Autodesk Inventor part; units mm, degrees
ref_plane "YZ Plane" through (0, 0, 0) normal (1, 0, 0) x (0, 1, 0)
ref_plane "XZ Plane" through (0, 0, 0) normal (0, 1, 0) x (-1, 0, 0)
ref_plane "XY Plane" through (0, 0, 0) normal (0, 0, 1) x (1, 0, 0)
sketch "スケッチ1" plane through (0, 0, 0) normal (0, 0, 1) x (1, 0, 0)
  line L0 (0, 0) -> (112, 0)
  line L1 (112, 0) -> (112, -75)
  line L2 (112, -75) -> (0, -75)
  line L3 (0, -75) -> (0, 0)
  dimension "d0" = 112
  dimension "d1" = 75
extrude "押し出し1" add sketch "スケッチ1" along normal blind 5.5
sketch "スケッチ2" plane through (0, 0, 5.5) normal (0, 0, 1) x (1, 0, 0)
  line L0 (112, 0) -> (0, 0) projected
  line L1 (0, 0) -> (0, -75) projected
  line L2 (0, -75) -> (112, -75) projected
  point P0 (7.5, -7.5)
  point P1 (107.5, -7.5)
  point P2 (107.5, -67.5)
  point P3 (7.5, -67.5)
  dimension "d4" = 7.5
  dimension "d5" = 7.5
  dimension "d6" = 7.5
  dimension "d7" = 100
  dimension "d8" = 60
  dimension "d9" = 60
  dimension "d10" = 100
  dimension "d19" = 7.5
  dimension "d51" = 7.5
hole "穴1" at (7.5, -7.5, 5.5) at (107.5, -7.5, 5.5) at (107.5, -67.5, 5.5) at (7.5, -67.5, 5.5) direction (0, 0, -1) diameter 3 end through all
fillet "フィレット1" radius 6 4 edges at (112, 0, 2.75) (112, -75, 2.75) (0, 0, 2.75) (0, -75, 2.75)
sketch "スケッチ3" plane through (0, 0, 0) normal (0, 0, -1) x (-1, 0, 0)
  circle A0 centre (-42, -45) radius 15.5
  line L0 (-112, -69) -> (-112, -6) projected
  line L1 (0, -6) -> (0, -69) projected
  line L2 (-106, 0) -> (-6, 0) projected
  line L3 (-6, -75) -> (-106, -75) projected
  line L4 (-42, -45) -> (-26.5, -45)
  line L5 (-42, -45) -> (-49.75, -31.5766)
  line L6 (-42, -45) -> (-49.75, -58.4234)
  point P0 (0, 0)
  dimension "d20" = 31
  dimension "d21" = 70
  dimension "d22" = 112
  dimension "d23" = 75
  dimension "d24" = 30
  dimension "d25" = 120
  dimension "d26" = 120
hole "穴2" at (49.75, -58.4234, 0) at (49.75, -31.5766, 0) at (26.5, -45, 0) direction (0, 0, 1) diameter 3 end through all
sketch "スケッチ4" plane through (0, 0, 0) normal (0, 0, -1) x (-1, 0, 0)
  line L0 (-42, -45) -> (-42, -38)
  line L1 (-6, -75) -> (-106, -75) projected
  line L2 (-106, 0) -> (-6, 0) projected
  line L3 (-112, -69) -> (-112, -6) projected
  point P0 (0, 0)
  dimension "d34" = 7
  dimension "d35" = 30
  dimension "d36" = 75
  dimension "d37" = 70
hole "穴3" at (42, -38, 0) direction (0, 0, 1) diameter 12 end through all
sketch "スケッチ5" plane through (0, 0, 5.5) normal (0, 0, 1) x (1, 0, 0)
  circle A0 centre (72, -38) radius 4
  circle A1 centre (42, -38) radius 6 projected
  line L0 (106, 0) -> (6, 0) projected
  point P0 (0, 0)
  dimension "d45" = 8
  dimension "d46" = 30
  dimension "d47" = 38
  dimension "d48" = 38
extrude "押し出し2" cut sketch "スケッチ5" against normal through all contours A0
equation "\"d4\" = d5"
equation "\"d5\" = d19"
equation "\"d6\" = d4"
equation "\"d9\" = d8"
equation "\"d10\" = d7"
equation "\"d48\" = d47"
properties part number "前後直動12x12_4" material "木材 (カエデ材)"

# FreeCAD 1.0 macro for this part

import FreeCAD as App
import Part
import Sketcher

V = App.Vector


def edges_at(feature, points):
    """Names of the edges that pass closest to the given points."""
    edges = feature.Shape.Edges
    near = lambda p: min(range(len(edges)), key=lambda i: edges[i].distToShape(Part.Vertex(*p))[0])
    return sorted({f"Edge{near(p) + 1}" for p in points})

doc = App.newDocument("Part")
body = doc.addObject("PartDesign::Body", "Body")

# Sketch on XY plane
sketch1 = body.newObject("Sketcher::SketchObject", "Sketch")
sketch1.AttachmentSupport = (doc.getObject("XY_Plane"), [""])
sketch1.MapMode = "FlatFace"
sketch1.addGeometry([
    Part.LineSegment(V(112, 0, 0), V(0, 0, 0)),
    Part.LineSegment(V(0, 0, 0), V(0, -75, 0)),
    Part.LineSegment(V(0, -75, 0), V(112, -75, 0)),
    Part.LineSegment(V(112, -75, 0), V(112, 0, 0)),
], False)
sketch1.addConstraint([
    Sketcher.Constraint("Coincident", 0, 2, 1, 1),
    Sketcher.Constraint("Coincident", 1, 2, 2, 1),
    Sketcher.Constraint("Coincident", 2, 2, 3, 1),
    Sketcher.Constraint("Coincident", 3, 2, 0, 1),
    Sketcher.Constraint("Horizontal", 0),
    Sketcher.Constraint("Vertical", 1),
    Sketcher.Constraint("Horizontal", 2),
    Sketcher.Constraint("Vertical", 3),
    Sketcher.Constraint("Coincident", 0, 2, -1, 1),
    Sketcher.Constraint("DistanceX", 0, 2, 0, 1, 112.0),
    Sketcher.Constraint("DistanceY", 1, 2, 1, 1, 75.0),
])
pad1 = body.newObject("PartDesign::Pad", "Pad")
pad1.Profile = sketch1
pad1.Length = 5.5

# Sketch on XY plane
sketch2 = body.newObject("Sketcher::SketchObject", "Sketch001")
sketch2.AttachmentSupport = (doc.getObject("XY_Plane"), [""])
sketch2.MapMode = "FlatFace"
sketch2.AttachmentOffset = App.Placement(V(0, 0, 5.5), App.Rotation())
sketch2.addGeometry([
    Part.Circle(V(7.5, -7.5, 0), V(0, 0, 1), 1.5),
    Part.Circle(V(107.5, -7.5, 0), V(0, 0, 1), 1.5),
    Part.Circle(V(107.5, -67.5, 0), V(0, 0, 1), 1.5),
    Part.Circle(V(7.5, -67.5, 0), V(0, 0, 1), 1.5),
], False)
sketch2.addConstraint([
    Sketcher.Constraint("Equal", 0, 1),
    Sketcher.Constraint("Equal", 1, 2),
    Sketcher.Constraint("Equal", 2, 3),
    Sketcher.Constraint("Horizontal", 0, 3, 1, 3),
    Sketcher.Constraint("Horizontal", 2, 3, 3, 3),
    Sketcher.Constraint("Vertical", 1, 3, 2, 3),
    Sketcher.Constraint("Vertical", 0, 3, 3, 3),
    Sketcher.Constraint("Diameter", 0, 3.0),
    Sketcher.Constraint("DistanceX", 0, 3, 1, 3, 100.0),
    Sketcher.Constraint("DistanceY", 2, 3, 1, 3, 60.0),
    Sketcher.Constraint("DistanceX", -1, 1, 0, 3, 7.5),
    Sketcher.Constraint("DistanceY", 0, 3, -1, 1, 7.5),
])
doc.recompute()
hole = body.newObject("PartDesign::Hole", "Hole")
hole.Profile = sketch2
hole.ThreadType = "None"
hole.Diameter = 3
hole.DepthType = "ThroughAll"
doc.recompute()

fillet = body.newObject("PartDesign::Fillet", "Fillet")
fillet.Base = (hole, edges_at(hole, [
    (112, 0, 2.75),
    (112, -75, 2.75),
    (0, 0, 2.75),
    (0, -75, 2.75),
]))
fillet.Radius = 6

# Sketch on XY plane
sketch3 = body.newObject("Sketcher::SketchObject", "Sketch002")
sketch3.AttachmentSupport = (doc.getObject("XY_Plane"), [""])
sketch3.MapMode = "FlatFace"
sketch3.addGeometry([
    Part.Circle(V(49.8, -58.4, 0), V(0, 0, 1), 1.5),
    Part.Circle(V(49.8, -31.6, 0), V(0, 0, 1), 1.5),
    Part.Circle(V(26.5, -45, 0), V(0, 0, 1), 1.5),
], False)
sketch3.addConstraint([
    Sketcher.Constraint("Equal", 0, 1),
    Sketcher.Constraint("Equal", 1, 2),
    Sketcher.Constraint("Vertical", 0, 3, 1, 3),
    Sketcher.Constraint("Diameter", 0, 3.0),
    Sketcher.Constraint("DistanceY", 2, 3, -1, 1, 45.0),
    Sketcher.Constraint("DistanceX", -1, 1, 2, 3, 26.5),
    Sketcher.Constraint("DistanceX", -1, 1, 0, 3, 49.75),
    Sketcher.Constraint("DistanceY", 0, 3, -1, 1, 58.4234),
    Sketcher.Constraint("DistanceY", 1, 3, -1, 1, 31.5766),
])
doc.recompute()
hole2 = body.newObject("PartDesign::Hole", "Hole001")
hole2.Profile = sketch3
hole2.ThreadType = "None"
hole2.Diameter = 3
hole2.DepthType = "ThroughAll"
hole2.Reversed = True

# Sketch on XY plane
sketch4 = body.newObject("Sketcher::SketchObject", "Sketch003")
sketch4.AttachmentSupport = (doc.getObject("XY_Plane"), [""])
sketch4.MapMode = "FlatFace"
sketch4.addGeometry(Part.Circle(V(42, -38, 0), V(0, 0, 1), 6), False)
sketch4.addConstraint([
    Sketcher.Constraint("Diameter", 0, 12.0),
    Sketcher.Constraint("DistanceX", -1, 1, 0, 3, 42.0),
    Sketcher.Constraint("DistanceY", 0, 3, -1, 1, 38.0),
])
doc.recompute()
hole3 = body.newObject("PartDesign::Hole", "Hole002")
hole3.Profile = sketch4
hole3.ThreadType = "None"
hole3.Diameter = 12
hole3.DepthType = "ThroughAll"
hole3.Reversed = True

# Sketch on XY plane
sketch5 = body.newObject("Sketcher::SketchObject", "Sketch004")
sketch5.AttachmentSupport = (doc.getObject("XY_Plane"), [""])
sketch5.MapMode = "FlatFace"
sketch5.AttachmentOffset = App.Placement(V(0, 0, 5.5), App.Rotation())
sketch5.addGeometry(Part.Circle(V(72, -38, 0), V(0, 0, 1), 4), False)
sketch5.addConstraint([
    Sketcher.Constraint("Diameter", 0, 8.0),
    Sketcher.Constraint("DistanceY", 0, 3, -1, 1, 38.0),
    Sketcher.Constraint("DistanceX", -1, 1, 0, 3, 72.0),
])
pocket1 = body.newObject("PartDesign::Pocket", "Pocket")
pocket1.Profile = sketch5
pocket1.Type = "ThroughAll"

doc.recompute()
